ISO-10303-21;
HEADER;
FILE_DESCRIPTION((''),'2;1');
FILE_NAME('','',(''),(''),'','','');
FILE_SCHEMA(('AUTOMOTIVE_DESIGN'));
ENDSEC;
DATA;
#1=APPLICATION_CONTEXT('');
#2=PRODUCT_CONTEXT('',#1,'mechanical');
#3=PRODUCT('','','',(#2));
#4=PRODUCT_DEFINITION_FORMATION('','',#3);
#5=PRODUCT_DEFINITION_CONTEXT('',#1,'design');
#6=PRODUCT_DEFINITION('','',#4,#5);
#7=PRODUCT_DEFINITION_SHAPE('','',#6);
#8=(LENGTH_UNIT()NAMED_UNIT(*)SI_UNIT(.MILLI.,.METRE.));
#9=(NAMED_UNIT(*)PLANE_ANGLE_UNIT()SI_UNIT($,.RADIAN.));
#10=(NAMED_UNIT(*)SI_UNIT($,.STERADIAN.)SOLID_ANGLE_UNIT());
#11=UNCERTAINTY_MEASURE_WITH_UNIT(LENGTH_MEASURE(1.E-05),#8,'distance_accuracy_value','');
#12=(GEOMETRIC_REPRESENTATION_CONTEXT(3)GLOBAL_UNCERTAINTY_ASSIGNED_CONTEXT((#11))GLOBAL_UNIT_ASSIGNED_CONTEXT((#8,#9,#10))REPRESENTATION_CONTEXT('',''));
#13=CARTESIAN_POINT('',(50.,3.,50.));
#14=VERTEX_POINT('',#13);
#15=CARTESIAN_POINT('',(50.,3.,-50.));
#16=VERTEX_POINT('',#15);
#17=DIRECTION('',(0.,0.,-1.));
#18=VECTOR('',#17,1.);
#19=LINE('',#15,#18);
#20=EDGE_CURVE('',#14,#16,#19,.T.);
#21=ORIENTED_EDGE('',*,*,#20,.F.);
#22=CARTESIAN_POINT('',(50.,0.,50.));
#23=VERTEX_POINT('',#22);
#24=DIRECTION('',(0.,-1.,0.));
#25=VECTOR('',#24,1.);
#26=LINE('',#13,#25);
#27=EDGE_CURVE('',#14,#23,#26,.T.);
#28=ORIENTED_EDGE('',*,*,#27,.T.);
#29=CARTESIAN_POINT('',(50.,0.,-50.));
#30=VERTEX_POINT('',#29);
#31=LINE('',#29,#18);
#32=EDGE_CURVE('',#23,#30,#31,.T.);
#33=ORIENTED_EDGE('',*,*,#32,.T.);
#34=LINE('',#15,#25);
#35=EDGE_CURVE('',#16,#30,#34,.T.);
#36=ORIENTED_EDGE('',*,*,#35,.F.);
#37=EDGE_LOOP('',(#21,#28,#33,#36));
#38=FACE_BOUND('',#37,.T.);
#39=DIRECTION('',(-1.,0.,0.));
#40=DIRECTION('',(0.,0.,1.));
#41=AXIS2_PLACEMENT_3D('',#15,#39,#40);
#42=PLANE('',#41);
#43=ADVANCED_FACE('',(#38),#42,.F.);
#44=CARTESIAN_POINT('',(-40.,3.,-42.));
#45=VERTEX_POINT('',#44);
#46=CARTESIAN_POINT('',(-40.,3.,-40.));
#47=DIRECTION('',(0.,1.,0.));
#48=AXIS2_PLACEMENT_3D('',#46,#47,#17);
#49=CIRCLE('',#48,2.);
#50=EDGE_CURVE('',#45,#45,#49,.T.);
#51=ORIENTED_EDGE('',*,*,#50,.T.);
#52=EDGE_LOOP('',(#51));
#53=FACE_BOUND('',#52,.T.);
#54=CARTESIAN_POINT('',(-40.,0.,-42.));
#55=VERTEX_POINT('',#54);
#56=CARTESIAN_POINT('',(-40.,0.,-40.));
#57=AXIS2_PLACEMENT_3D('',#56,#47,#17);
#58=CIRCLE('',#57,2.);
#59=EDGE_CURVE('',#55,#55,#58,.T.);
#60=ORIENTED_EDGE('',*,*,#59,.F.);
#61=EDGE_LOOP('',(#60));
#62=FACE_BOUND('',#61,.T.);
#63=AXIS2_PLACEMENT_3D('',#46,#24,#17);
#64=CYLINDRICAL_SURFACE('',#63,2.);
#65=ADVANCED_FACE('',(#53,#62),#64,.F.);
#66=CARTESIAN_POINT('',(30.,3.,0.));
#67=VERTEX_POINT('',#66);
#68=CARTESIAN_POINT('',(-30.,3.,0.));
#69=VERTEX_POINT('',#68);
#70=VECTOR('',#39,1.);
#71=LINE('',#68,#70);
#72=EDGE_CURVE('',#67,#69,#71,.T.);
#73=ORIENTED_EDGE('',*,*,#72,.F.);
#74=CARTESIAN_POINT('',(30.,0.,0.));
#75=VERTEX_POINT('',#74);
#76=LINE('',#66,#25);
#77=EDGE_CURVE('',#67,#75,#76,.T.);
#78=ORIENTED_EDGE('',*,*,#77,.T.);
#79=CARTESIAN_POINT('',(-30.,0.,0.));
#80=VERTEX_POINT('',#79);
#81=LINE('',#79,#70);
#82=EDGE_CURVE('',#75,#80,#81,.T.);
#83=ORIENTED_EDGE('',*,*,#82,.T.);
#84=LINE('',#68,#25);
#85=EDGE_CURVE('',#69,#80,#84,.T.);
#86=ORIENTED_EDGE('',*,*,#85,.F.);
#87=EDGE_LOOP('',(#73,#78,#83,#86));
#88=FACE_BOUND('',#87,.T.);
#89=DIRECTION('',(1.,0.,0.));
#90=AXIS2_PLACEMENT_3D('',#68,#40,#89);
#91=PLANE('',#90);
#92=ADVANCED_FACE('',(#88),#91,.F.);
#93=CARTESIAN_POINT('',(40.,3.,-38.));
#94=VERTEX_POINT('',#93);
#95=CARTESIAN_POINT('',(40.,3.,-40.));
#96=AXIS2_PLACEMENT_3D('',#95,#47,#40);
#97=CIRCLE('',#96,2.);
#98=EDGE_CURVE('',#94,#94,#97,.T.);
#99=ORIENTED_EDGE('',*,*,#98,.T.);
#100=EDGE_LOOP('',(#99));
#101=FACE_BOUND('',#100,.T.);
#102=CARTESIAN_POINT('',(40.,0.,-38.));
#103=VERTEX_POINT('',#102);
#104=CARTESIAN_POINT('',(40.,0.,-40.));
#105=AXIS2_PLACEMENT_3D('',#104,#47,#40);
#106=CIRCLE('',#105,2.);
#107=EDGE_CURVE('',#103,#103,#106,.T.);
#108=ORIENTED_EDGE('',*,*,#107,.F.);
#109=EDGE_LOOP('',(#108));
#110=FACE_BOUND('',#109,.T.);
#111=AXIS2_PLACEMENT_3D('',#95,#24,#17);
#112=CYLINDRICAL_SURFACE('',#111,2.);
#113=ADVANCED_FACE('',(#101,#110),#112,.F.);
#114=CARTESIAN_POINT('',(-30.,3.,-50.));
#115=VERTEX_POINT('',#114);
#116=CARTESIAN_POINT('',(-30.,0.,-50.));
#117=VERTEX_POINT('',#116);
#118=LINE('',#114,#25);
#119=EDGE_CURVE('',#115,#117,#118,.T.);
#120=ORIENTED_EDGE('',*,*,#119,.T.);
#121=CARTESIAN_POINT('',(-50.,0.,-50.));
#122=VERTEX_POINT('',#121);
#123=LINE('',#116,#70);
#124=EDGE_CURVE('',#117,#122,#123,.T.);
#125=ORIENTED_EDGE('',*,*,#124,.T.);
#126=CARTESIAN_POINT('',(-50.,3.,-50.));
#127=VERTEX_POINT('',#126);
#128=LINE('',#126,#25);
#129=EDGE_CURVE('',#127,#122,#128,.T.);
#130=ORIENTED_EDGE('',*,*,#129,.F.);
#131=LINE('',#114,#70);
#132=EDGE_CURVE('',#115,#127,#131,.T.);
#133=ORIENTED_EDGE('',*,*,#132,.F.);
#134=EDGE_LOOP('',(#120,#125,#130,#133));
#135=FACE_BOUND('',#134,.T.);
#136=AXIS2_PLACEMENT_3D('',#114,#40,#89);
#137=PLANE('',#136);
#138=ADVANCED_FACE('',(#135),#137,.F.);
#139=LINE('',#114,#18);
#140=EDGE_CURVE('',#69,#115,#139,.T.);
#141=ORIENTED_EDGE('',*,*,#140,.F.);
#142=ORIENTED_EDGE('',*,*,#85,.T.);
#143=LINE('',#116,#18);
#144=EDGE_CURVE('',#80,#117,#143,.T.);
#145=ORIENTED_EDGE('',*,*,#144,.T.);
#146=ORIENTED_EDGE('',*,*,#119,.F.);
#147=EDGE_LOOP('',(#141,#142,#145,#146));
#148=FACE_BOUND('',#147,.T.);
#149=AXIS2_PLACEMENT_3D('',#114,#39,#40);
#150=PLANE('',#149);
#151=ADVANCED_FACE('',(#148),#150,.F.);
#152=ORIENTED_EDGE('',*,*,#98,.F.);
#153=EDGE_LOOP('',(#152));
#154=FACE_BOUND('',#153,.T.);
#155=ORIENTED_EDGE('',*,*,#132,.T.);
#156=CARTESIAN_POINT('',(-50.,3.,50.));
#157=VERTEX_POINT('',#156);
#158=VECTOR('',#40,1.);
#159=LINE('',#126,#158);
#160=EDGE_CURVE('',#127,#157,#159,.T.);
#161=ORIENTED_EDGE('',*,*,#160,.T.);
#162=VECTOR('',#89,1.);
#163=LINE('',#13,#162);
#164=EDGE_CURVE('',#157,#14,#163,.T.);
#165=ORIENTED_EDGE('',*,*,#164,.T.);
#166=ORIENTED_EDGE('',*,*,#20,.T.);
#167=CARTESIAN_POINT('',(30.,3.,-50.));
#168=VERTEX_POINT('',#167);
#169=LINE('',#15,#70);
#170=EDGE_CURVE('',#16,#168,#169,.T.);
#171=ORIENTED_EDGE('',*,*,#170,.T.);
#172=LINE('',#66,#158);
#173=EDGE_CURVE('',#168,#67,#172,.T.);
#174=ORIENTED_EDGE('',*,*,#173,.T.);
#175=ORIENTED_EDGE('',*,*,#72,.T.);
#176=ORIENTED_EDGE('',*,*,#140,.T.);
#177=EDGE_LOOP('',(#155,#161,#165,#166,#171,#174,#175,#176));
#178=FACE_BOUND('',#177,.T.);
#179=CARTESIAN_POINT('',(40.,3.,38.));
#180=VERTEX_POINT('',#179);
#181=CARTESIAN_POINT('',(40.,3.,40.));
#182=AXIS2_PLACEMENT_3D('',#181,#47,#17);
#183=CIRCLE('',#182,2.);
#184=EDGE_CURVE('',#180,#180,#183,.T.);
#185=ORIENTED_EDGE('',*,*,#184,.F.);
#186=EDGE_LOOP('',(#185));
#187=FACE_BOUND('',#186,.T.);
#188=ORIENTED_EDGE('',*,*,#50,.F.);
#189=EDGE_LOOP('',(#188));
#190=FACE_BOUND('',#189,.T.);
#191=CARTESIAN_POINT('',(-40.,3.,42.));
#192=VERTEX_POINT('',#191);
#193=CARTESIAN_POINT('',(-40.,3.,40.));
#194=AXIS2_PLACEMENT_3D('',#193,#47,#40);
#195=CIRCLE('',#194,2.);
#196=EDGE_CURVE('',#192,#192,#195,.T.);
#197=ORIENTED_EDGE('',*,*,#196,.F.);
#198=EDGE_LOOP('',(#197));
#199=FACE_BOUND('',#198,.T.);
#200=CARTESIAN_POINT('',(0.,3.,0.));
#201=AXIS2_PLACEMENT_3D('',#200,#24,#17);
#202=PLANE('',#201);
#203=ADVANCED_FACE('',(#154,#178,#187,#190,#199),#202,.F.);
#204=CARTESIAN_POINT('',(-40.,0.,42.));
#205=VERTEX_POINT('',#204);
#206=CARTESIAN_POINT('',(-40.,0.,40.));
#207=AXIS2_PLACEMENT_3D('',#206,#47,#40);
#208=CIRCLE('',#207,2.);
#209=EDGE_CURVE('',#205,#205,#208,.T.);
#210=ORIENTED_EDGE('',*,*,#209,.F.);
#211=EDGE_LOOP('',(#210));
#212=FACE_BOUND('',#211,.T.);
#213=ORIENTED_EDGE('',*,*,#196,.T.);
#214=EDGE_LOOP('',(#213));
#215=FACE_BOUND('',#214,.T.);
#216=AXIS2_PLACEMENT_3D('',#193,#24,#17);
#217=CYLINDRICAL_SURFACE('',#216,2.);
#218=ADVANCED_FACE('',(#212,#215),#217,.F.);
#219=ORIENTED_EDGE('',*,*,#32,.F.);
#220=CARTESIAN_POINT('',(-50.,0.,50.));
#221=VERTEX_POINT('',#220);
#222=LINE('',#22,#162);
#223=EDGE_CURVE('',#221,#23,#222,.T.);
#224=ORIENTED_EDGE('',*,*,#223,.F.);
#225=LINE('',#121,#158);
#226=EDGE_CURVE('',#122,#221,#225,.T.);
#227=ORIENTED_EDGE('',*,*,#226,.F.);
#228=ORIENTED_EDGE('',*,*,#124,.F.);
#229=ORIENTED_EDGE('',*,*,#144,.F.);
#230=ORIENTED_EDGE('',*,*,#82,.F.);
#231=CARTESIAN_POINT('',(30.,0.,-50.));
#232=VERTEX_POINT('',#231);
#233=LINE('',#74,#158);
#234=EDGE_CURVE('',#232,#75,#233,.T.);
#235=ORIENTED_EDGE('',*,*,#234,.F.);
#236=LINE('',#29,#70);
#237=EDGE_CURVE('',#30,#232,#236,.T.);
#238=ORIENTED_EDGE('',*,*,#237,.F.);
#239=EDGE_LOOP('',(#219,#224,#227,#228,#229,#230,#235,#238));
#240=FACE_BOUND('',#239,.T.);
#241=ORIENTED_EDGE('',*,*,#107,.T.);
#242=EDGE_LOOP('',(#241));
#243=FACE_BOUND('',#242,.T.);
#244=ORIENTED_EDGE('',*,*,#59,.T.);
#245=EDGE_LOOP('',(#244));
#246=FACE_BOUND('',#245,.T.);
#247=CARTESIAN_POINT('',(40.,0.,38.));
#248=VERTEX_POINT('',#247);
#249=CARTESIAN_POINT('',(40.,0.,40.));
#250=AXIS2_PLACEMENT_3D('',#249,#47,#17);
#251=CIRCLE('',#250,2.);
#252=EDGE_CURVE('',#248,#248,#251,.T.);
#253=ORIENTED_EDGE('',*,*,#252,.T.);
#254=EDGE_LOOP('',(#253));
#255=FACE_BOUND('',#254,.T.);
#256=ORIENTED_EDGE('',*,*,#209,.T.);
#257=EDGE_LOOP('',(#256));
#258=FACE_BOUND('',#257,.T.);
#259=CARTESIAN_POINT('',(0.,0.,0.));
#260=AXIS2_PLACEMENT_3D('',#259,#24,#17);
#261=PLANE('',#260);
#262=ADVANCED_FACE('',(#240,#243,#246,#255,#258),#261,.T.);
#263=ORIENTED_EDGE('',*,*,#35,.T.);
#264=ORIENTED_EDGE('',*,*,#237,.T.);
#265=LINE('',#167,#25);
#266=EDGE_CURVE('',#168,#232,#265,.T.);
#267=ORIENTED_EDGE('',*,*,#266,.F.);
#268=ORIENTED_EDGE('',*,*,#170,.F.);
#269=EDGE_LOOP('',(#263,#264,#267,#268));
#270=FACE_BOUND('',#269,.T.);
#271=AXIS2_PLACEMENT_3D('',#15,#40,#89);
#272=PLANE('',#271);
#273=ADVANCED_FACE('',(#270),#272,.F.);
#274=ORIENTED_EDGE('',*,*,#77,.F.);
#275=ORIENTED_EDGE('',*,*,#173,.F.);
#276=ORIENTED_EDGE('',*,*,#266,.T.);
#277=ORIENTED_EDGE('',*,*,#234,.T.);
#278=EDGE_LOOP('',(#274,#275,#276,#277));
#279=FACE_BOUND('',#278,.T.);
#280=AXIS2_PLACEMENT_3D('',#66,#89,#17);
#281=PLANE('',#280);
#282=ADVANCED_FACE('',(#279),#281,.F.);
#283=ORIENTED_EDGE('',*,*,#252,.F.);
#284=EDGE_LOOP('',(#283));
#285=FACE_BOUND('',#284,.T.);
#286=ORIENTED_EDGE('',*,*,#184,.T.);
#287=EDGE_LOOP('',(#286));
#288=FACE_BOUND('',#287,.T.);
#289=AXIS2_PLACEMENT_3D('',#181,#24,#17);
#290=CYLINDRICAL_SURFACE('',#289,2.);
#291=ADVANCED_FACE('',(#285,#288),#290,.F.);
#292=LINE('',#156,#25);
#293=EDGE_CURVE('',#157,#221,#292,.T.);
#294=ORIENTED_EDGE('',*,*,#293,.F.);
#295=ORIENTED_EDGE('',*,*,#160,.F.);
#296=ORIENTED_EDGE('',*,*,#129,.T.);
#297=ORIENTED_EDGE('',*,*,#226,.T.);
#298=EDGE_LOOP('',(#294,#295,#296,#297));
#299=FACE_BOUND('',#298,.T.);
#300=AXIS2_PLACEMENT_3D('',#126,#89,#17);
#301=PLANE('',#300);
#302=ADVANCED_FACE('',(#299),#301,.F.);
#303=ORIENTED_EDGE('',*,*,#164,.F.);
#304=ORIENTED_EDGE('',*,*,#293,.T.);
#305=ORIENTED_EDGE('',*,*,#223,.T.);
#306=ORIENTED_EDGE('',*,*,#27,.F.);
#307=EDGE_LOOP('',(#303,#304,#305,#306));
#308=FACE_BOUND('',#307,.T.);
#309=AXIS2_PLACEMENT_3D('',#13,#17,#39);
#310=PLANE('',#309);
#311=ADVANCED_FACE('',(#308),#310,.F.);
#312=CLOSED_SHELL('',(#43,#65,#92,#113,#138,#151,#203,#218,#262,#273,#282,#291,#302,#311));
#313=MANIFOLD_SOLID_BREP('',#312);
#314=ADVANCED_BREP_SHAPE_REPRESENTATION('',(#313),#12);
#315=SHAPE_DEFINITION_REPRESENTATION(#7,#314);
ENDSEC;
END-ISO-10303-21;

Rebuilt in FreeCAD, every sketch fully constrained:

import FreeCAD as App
import Part
import Sketcher

doc = App.newDocument("Part")
body = doc.addObject("PartDesign::Body", "Body")

# Sketch on XZ plane
sketch1 = body.newObject("Sketcher::SketchObject", "Sketch")
sketch1.AttachmentSupport = (doc.getObject("XZ_Plane"), [""])
sketch1.MapMode = "FlatFace"
sketch1.addGeometry([
    Part.LineSegment(App.Vector(-30, 0, 0), App.Vector(-30, -50, 0)),  # 0
    Part.LineSegment(App.Vector(-30, -50, 0), App.Vector(-50, -50, 0)),  # 1
    Part.LineSegment(App.Vector(-50, -50, 0), App.Vector(-50, 50, 0)),  # 2
    Part.LineSegment(App.Vector(-50, 50, 0), App.Vector(50, 50, 0)),  # 3
    Part.LineSegment(App.Vector(50, 50, 0), App.Vector(50, -50, 0)),  # 4
    Part.LineSegment(App.Vector(50, -50, 0), App.Vector(30, -50, 0)),  # 5
    Part.LineSegment(App.Vector(30, -50, 0), App.Vector(30, 0, 0)),  # 6
    Part.LineSegment(App.Vector(30, 0, 0), App.Vector(-30, 0, 0)),  # 7
    Part.Circle(App.Vector(40, 40, 0), App.Vector(0, 0, 1), 2),  # 8
    Part.Circle(App.Vector(-40, 40, 0), App.Vector(0, 0, 1), 2),  # 9
    Part.Circle(App.Vector(40, -40, 0), App.Vector(0, 0, 1), 2),  # 10
    Part.Circle(App.Vector(-40, -40, 0), App.Vector(0, 0, 1), 2),  # 11
], False)
sketch1.addConstraint([
    Sketcher.Constraint("Coincident", 0, 2, 1, 1),
    Sketcher.Constraint("Coincident", 1, 2, 2, 1),
    Sketcher.Constraint("Coincident", 2, 2, 3, 1),
    Sketcher.Constraint("Coincident", 3, 2, 4, 1),
    Sketcher.Constraint("Coincident", 4, 2, 5, 1),
    Sketcher.Constraint("Coincident", 5, 2, 6, 1),
    Sketcher.Constraint("Coincident", 6, 2, 7, 1),
    Sketcher.Constraint("Coincident", 7, 2, 0, 1),
    Sketcher.Constraint("Vertical", 0),
    Sketcher.Constraint("Horizontal", 1),
    Sketcher.Constraint("Vertical", 2),
    Sketcher.Constraint("Horizontal", 3),
    Sketcher.Constraint("Vertical", 4),
    Sketcher.Constraint("Horizontal", 5),
    Sketcher.Constraint("Vertical", 6),
    Sketcher.Constraint("Horizontal", 7),
    Sketcher.Constraint("Equal", 8, 9),
    Sketcher.Constraint("Equal", 9, 10),
    Sketcher.Constraint("Equal", 10, 11),
    Sketcher.Constraint("Symmetric", 9, 3, 10, 3, -1, 1),
    Sketcher.Constraint("Symmetric", 8, 3, 11, 3, -1, 1),
    Sketcher.Constraint("Symmetric", 1, 2, 3, 2, -1, 1),
    Sketcher.Constraint("Symmetric", 6, 2, 7, 2, -1, 1),
    Sketcher.Constraint("Symmetric", 8, 3, 9, 3, -2),
    Sketcher.Constraint("Horizontal", 1, 2, 4, 2),
    Sketcher.Constraint("Equal", 3, 2),
    Sketcher.Constraint("Diameter", 8, 4.0),
    Sketcher.Constraint("DistanceX", 1, 2, 1, 1, 20.0),
    Sketcher.Constraint("DistanceX", 3, 1, 3, 2, 100.0),
    Sketcher.Constraint("DistanceX", -1, 1, 8, 3, 40.0),
    Sketcher.Constraint("DistanceY", -1, 1, 8, 3, 40.0),
])
pad1 = body.newObject("PartDesign::Pad", "Pad")
pad1.Profile = sketch1
pad1.Length = 3
pad1.Reversed = True

doc.recompute()
